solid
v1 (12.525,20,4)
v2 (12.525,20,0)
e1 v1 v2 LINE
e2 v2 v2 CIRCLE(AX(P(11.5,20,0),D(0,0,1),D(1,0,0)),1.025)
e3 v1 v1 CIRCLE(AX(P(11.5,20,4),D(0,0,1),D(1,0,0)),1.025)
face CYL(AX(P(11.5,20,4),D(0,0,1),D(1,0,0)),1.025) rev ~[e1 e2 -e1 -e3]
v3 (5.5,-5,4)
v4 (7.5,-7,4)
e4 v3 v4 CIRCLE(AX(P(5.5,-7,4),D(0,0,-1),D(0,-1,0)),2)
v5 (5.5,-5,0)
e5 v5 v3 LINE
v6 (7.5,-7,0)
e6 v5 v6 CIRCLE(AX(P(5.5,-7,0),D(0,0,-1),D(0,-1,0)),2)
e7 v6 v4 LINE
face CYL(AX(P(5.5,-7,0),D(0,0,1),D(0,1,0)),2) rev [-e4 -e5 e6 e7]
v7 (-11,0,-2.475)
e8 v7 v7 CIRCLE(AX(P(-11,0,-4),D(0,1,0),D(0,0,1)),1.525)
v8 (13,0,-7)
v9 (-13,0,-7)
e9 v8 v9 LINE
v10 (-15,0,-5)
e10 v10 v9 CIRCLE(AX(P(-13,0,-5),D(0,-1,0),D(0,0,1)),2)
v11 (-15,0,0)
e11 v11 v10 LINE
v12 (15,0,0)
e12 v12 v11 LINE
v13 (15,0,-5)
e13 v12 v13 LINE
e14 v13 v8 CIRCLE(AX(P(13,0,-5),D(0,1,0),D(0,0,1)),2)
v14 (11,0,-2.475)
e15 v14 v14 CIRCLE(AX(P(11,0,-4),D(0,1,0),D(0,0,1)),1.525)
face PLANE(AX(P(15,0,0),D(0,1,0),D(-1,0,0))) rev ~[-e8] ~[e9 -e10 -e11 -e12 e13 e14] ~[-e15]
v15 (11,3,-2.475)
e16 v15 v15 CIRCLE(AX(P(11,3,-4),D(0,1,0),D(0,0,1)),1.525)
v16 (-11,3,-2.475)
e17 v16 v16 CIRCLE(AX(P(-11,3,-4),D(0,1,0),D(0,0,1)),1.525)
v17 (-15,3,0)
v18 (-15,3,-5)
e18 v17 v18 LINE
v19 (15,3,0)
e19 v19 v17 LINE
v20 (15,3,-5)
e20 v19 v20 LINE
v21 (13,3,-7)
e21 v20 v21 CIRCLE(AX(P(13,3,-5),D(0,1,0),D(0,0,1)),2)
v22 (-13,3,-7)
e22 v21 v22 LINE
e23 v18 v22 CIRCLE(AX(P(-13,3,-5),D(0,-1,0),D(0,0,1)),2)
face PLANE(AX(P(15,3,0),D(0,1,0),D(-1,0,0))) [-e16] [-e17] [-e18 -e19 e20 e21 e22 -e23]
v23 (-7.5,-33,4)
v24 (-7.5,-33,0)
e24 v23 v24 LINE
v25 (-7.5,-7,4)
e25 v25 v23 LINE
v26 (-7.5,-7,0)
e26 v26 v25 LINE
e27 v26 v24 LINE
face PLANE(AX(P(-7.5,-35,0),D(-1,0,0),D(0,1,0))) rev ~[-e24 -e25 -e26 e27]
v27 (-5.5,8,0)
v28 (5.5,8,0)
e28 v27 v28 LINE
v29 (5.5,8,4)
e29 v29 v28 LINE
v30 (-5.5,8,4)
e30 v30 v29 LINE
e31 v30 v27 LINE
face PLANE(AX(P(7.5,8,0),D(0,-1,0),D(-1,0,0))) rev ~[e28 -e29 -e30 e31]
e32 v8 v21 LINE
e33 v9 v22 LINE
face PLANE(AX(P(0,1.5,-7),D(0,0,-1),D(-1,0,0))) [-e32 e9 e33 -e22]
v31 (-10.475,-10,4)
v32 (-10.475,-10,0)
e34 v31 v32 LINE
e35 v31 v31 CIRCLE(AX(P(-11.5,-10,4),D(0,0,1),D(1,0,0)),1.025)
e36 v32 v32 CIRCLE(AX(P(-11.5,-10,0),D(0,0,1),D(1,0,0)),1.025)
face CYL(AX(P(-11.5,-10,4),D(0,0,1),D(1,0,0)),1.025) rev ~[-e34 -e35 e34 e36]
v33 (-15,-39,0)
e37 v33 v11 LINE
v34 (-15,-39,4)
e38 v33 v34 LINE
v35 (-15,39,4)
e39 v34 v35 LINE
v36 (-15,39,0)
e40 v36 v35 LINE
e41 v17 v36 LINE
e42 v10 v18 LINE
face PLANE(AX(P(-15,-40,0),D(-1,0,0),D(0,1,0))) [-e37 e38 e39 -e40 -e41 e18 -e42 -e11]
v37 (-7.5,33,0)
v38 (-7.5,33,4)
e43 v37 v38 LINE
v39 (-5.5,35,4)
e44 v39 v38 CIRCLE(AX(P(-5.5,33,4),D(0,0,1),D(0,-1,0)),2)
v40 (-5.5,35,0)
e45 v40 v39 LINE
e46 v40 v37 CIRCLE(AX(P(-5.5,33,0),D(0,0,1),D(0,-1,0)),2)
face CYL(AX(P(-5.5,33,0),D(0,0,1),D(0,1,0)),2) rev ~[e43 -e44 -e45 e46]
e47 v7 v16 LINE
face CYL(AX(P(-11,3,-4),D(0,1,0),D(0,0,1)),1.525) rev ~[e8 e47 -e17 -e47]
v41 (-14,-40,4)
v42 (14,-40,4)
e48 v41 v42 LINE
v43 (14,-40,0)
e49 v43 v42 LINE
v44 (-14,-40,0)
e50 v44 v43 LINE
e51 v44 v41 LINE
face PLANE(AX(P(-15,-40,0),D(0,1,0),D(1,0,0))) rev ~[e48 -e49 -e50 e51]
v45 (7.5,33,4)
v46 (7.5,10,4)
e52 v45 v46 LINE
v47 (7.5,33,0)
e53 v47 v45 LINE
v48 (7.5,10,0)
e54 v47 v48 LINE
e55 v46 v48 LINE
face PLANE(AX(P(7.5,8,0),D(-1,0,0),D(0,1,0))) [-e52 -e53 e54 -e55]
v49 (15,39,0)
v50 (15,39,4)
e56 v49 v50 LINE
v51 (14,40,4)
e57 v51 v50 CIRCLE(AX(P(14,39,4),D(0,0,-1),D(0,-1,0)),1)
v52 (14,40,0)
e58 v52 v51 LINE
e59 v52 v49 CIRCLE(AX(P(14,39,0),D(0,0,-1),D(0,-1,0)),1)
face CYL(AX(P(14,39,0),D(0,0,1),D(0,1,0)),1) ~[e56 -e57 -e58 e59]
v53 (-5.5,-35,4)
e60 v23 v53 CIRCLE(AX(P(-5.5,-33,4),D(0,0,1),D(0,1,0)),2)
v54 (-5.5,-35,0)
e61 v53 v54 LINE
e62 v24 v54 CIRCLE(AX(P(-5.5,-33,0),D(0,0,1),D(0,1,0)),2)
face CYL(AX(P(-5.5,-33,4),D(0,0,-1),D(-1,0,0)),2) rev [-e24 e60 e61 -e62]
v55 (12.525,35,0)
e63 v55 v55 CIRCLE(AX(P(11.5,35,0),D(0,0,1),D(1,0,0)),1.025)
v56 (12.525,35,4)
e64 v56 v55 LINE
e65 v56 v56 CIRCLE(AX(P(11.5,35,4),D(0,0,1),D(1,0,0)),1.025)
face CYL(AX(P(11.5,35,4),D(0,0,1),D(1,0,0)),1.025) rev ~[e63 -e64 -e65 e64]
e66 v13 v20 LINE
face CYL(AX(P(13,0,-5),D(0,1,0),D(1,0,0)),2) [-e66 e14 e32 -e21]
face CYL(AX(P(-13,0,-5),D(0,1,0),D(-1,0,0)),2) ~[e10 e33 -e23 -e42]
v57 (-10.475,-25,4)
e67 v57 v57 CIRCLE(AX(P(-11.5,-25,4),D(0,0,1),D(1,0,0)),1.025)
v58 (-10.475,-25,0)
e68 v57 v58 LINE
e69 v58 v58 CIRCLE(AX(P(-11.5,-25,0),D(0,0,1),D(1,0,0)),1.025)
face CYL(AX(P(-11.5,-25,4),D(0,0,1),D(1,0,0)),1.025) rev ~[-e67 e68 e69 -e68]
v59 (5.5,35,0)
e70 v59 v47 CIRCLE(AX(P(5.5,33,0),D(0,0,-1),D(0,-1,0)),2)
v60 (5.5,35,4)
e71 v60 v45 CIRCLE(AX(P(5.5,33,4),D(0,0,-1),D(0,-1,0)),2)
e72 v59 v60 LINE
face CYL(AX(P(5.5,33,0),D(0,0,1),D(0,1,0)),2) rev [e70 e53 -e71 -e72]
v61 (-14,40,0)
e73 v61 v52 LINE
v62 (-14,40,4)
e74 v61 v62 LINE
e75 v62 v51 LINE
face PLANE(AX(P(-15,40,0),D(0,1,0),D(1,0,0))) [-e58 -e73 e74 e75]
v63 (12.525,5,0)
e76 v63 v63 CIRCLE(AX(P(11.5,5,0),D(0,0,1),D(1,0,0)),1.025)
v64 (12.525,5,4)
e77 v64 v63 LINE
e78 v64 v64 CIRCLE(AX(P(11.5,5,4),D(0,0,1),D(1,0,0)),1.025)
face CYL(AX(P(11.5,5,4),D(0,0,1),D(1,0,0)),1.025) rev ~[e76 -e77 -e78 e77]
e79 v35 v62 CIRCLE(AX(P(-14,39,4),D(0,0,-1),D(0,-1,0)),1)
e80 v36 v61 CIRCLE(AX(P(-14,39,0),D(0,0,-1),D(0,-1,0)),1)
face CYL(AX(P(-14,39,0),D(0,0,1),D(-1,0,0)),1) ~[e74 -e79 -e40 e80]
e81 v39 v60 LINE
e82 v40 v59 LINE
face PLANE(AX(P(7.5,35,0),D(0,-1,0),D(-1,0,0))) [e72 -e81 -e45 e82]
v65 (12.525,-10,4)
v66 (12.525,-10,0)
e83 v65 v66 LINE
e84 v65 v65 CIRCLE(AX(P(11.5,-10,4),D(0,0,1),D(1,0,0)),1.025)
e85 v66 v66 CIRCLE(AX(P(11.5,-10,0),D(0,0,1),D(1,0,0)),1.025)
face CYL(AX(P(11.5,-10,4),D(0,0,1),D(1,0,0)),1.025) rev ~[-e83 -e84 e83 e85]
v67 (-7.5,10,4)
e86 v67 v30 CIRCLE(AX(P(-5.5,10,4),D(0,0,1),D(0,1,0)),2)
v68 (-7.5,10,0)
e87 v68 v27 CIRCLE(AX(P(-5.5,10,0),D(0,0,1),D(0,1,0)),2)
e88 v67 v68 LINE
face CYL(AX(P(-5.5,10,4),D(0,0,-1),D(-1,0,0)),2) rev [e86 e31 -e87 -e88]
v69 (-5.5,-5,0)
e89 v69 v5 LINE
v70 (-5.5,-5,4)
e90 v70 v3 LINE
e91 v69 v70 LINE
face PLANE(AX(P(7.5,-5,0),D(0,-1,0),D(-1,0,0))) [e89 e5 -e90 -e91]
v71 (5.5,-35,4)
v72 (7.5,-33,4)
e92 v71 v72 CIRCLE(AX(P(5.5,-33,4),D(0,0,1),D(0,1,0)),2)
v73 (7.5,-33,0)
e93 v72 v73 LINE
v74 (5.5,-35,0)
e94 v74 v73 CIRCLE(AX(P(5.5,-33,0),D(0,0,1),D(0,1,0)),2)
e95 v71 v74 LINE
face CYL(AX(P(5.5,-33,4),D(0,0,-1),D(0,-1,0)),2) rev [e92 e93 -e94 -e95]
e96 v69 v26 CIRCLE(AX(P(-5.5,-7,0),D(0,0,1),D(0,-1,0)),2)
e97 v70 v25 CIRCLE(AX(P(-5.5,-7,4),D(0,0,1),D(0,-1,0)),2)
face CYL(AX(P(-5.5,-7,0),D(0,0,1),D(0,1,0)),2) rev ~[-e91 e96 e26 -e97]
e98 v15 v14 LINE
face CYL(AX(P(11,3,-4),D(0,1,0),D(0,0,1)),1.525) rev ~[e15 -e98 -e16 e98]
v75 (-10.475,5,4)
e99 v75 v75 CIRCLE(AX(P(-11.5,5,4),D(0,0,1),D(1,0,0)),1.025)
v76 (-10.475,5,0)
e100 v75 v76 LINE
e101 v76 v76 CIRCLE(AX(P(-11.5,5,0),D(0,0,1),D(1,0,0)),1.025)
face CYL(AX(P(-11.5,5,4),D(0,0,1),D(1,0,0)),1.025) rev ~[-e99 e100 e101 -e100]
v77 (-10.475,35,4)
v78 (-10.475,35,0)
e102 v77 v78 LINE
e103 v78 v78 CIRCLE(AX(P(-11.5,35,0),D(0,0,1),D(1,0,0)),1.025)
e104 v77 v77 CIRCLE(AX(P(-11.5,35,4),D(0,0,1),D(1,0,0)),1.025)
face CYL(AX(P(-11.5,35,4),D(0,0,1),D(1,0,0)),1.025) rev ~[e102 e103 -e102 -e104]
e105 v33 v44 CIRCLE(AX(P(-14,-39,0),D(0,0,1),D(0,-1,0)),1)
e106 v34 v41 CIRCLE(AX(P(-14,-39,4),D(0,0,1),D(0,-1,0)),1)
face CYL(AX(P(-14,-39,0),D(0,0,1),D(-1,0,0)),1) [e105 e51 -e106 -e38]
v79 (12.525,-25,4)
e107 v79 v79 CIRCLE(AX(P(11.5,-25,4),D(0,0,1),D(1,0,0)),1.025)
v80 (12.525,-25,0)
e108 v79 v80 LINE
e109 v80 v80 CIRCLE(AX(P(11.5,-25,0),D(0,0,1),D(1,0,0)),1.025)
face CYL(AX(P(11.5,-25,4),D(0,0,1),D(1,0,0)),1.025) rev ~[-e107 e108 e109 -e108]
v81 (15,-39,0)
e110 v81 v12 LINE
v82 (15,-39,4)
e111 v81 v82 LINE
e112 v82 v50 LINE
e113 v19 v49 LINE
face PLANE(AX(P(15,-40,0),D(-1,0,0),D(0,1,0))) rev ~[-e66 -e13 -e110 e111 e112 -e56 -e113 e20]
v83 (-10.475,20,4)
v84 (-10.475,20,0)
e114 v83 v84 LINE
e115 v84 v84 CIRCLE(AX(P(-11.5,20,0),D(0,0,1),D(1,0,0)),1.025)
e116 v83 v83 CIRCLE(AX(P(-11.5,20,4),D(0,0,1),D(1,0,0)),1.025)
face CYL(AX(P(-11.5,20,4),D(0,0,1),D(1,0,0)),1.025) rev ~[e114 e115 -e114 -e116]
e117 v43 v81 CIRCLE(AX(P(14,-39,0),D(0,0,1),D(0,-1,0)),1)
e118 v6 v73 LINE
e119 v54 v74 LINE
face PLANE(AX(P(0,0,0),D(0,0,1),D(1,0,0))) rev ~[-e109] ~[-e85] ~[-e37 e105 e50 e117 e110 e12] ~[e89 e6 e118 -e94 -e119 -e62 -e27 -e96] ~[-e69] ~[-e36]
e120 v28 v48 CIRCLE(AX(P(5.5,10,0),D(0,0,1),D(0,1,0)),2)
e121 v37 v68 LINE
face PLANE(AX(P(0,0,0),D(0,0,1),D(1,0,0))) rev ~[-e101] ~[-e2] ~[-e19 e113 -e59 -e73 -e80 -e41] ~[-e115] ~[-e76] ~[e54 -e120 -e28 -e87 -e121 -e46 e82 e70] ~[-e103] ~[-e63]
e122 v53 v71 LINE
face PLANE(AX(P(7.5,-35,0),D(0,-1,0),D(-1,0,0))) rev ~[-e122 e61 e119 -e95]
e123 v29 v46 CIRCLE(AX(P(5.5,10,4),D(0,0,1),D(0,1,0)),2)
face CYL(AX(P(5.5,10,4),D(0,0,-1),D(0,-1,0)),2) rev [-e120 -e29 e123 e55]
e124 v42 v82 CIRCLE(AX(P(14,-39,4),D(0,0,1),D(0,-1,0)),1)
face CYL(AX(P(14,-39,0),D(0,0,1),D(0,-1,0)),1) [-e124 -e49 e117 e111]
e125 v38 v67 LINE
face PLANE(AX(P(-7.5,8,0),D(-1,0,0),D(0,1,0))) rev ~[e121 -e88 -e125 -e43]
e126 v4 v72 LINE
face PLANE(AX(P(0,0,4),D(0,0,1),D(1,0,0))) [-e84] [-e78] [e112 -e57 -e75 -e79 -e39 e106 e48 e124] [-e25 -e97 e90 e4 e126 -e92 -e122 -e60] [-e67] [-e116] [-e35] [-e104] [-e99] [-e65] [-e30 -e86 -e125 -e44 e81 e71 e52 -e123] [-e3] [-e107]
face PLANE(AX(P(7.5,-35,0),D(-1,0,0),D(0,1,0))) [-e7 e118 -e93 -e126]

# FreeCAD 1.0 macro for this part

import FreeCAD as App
import Part
import Sketcher

V = App.Vector
Q = App.Units.Quantity


def edges_at(feature, points):
    """Names of the edges that pass closest to the given points."""
    edges = feature.Shape.Edges
    near = lambda p: min(range(len(edges)), key=lambda i: edges[i].distToShape(Part.Vertex(*p))[0])
    return sorted({f"Edge{near(p) + 1}" for p in points})

doc = App.newDocument("Part")
body = doc.addObject("PartDesign::Body", "Body")

# Sketch on XY plane
sketch1 = doc.addObject("Sketcher::SketchObject", "Sketch")
body.addObject(sketch1)
sketch1.AttachmentSupport = (doc.XY_Plane, [""])
sketch1.MapMode = "FlatFace"
sketch1.addGeometry([
    Part.LineSegment(V(-15, 40, 0), V(-15, -40, 0)),
    Part.LineSegment(V(-15, -40, 0), V(15, -40, 0)),
    Part.LineSegment(V(15, -40, 0), V(15, 40, 0)),
    Part.LineSegment(V(15, 40, 0), V(-15, 40, 0)),
], False)
sketch1.addConstraint([
    Sketcher.Constraint("Coincident", 0, 2, 1, 1),
    Sketcher.Constraint("Coincident", 1, 2, 2, 1),
    Sketcher.Constraint("Coincident", 2, 2, 3, 1),
    Sketcher.Constraint("Coincident", 3, 2, 0, 1),
    Sketcher.Constraint("Vertical", 0),
    Sketcher.Constraint("Horizontal", 1),
    Sketcher.Constraint("Vertical", 2),
    Sketcher.Constraint("Horizontal", 3),
    Sketcher.Constraint("Symmetric", 0, 2, 2, 2, -1, 1),
    Sketcher.Constraint("DistanceX", 1, 1, 1, 2, Q("30 mm")),
    Sketcher.Constraint("DistanceY", 0, 2, 0, 1, Q("80 mm")),
])
pad1 = doc.addObject("PartDesign::Pad", "Pad")
body.addObject(pad1)
pad1.Profile = sketch1
pad1.Length = 4

# Sketch on XY plane
sketch2 = doc.addObject("Sketcher::SketchObject", "Sketch001")
body.addObject(sketch2)
sketch2.AttachmentSupport = (doc.XY_Plane, [""])
sketch2.MapMode = "FlatFace"
sketch2.AttachmentOffset = App.Placement(V(0, 0, 4), App.Rotation())
sketch2.addGeometry([
    Part.Circle(V(11.5, 35, 0), V(0, 0, 1), 1),
    Part.Circle(V(-11.5, 35, 0), V(0, 0, 1), 1),
], False)
sketch2.addConstraint([
    Sketcher.Constraint("Equal", 0, 1),
    Sketcher.Constraint("Symmetric", 0, 3, 1, 3, -2),
    Sketcher.Constraint("Diameter", 0, Q("2.05 mm")),
    Sketcher.Constraint("DistanceY", -1, 1, 0, 3, Q("35 mm")),
    Sketcher.Constraint("DistanceX", 1, 3, 0, 3, Q("23 mm")),
])
pocket1 = doc.addObject("PartDesign::Pocket", "Pocket")
body.addObject(pocket1)
pocket1.Profile = sketch2
pocket1.Length = 10
doc.recompute()

linearpattern = doc.addObject("PartDesign::LinearPattern", "LinearPattern")
body.addObject(linearpattern)
linearpattern.Originals = [pocket1]
linearpattern.Direction = (doc.Y_Axis, [""])
linearpattern.Mode = "offset"
linearpattern.Offset = 15
linearpattern.Occurrences = 5
linearpattern.Reversed = True
body.Tip = linearpattern

# Sketch on XY plane
sketch3 = doc.addObject("Sketcher::SketchObject", "Sketch002")
body.addObject(sketch3)
sketch3.AttachmentSupport = (doc.XY_Plane, [""])
sketch3.MapMode = "FlatFace"
sketch3.addGeometry([
    Part.LineSegment(V(15, 3, 0), V(15, 0, 0)),
    Part.LineSegment(V(15, 0, 0), V(-15, 0, 0)),
    Part.LineSegment(V(-15, 0, 0), V(-15, 3, 0)),
    Part.LineSegment(V(-15, 3, 0), V(15, 3, 0)),
], False)
sketch3.addConstraint([
    Sketcher.Constraint("Coincident", 0, 2, 1, 1),
    Sketcher.Constraint("Coincident", 1, 2, 2, 1),
    Sketcher.Constraint("Coincident", 2, 2, 3, 1),
    Sketcher.Constraint("Coincident", 3, 2, 0, 1),
    Sketcher.Constraint("Vertical", 0),
    Sketcher.Constraint("Horizontal", 1),
    Sketcher.Constraint("Vertical", 2),
    Sketcher.Constraint("Horizontal", 3),
    Sketcher.Constraint("Symmetric", 0, 2, 1, 2, -1, 1),
    Sketcher.Constraint("DistanceX", 1, 2, 1, 1, Q("30 mm")),
    Sketcher.Constraint("DistanceY", 0, 2, 0, 1, Q("3 mm")),
])
pad2 = doc.addObject("PartDesign::Pad", "Pad001")
body.addObject(pad2)
pad2.Profile = sketch3
pad2.Length = 7
pad2.Reversed = True
doc.recompute()

fillet = doc.addObject("PartDesign::Fillet", "Fillet")
body.addObject(fillet)
fillet.Base = (pad2, edges_at(pad2, [
    (15, -40, 2),
    (-15, -40, 2),
    (-15, 40, 2),
    (15, 40, 2),
]))
fillet.Radius = 1

# Sketch on XY plane
sketch4 = doc.addObject("Sketcher::SketchObject", "Sketch003")
body.addObject(sketch4)
sketch4.AttachmentSupport = (doc.XY_Plane, [""])
sketch4.MapMode = "FlatFace"
sketch4.addGeometry([
    Part.LineSegment(V(8, 35, 0), V(8, 8, 0)),
    Part.LineSegment(V(8, 8, 0), V(-8, 8, 0)),
    Part.LineSegment(V(-8, 8, 0), V(-8, 35, 0)),
    Part.LineSegment(V(-8, 35, 0), V(8, 35, 0)),
], False)
sketch4.addConstraint([
    Sketcher.Constraint("Coincident", 0, 2, 1, 1),
    Sketcher.Constraint("Coincident", 1, 2, 2, 1),
    Sketcher.Constraint("Coincident", 2, 2, 3, 1),
    Sketcher.Constraint("Coincident", 3, 2, 0, 1),
    Sketcher.Constraint("Vertical", 0),
    Sketcher.Constraint("Horizontal", 1),
    Sketcher.Constraint("Vertical", 2),
    Sketcher.Constraint("Horizontal", 3),
    Sketcher.Constraint("DistanceX", 1, 2, 1, 1, Q("15 mm")),
    Sketcher.Constraint("DistanceY", 0, 2, 0, 1, Q("27 mm")),
    Sketcher.Constraint("DistanceY", -1, 1, 0, 2, Q("8 mm")),
    Sketcher.Constraint("DistanceX", -1, 1, 0, 2, Q("7.5 mm")),
])
pocket2 = doc.addObject("PartDesign::Pocket", "Pocket001")
body.addObject(pocket2)
pocket2.Profile = sketch4
pocket2.Length = 66
pocket2.Midplane = True
doc.recompute()

fillet2 = doc.addObject("PartDesign::Fillet", "Fillet001")
body.addObject(fillet2)
fillet2.Base = (pocket2, edges_at(pocket2, [
    (-7.5, 35, 2),
    (-7.5, 8, 2),
    (7.5, 8, 2),
    (7.5, 35, 2),
]))
fillet2.Radius = 2

# Sketch on XY plane
sketch5 = doc.addObject("Sketcher::SketchObject", "Sketch004")
body.addObject(sketch5)
sketch5.AttachmentSupport = (doc.XY_Plane, [""])
sketch5.MapMode = "FlatFace"
sketch5.addGeometry([
    Part.LineSegment(V(8, -5, 0), V(8, -35, 0)),
    Part.LineSegment(V(8, -35, 0), V(-8, -35, 0)),
    Part.LineSegment(V(-8, -35, 0), V(-8, -5, 0)),
    Part.LineSegment(V(-8, -5, 0), V(8, -5, 0)),
], False)
sketch5.addConstraint([
    Sketcher.Constraint("Coincident", 0, 2, 1, 1),
    Sketcher.Constraint("Coincident", 1, 2, 2, 1),
    Sketcher.Constraint("Coincident", 2, 2, 3, 1),
    Sketcher.Constraint("Coincident", 3, 2, 0, 1),
    Sketcher.Constraint("Vertical", 0),
    Sketcher.Constraint("Horizontal", 1),
    Sketcher.Constraint("Vertical", 2),
    Sketcher.Constraint("Horizontal", 3),
    Sketcher.Constraint("DistanceX", 1, 2, 1, 1, Q("15 mm")),
    Sketcher.Constraint("DistanceY", 0, 2, 0, 1, Q("30 mm")),
    Sketcher.Constraint("DistanceY", 0, 2, -1, 1, Q("35 mm")),
    Sketcher.Constraint("DistanceX", -1, 1, 0, 2, Q("7.5 mm")),
])
pocket3 = doc.addObject("PartDesign::Pocket", "Pocket002")
body.addObject(pocket3)
pocket3.Profile = sketch5
pocket3.Length = 66
pocket3.Midplane = True
doc.recompute()

fillet3 = doc.addObject("PartDesign::Fillet", "Fillet002")
body.addObject(fillet3)
fillet3.Base = (pocket3, edges_at(pocket3, [
    (-7.5, -5, 2),
    (-7.5, -35, 2),
    (7.5, -35, 2),
    (7.5, -5, 2),
]))
fillet3.Radius = 2

# Sketch on XZ plane
sketch6 = doc.addObject("Sketcher::SketchObject", "Sketch005")
body.addObject(sketch6)
sketch6.AttachmentSupport = (doc.XZ_Plane, [""])
sketch6.MapMode = "FlatFace"
sketch6.AttachmentOffset = App.Placement(V(0, 0, -3), App.Rotation())
sketch6.addGeometry([
    Part.Circle(V(11, -4, 0), V(0, 0, 1), 1.5),
    Part.Circle(V(-11, -4, 0), V(0, 0, 1), 1.5),
], False)
sketch6.addConstraint([
    Sketcher.Constraint("Equal", 0, 1),
    Sketcher.Constraint("Symmetric", 0, 3, 1, 3, -2),
    Sketcher.Constraint("Diameter", 0, Q("3.05 mm")),
    Sketcher.Constraint("DistanceX", -1, 1, 0, 3, Q("11 mm")),
    Sketcher.Constraint("DistanceY", 0, 3, -1, 1, Q("4 mm")),
])
pocket4 = doc.addObject("PartDesign::Pocket", "Pocket003")
body.addObject(pocket4)
pocket4.Profile = sketch6
pocket4.Length = 66
pocket4.Midplane = True
doc.recompute()

fillet4 = doc.addObject("PartDesign::Fillet", "Fillet003")
body.addObject(fillet4)
fillet4.Base = (pocket4, edges_at(pocket4, [(15, 1.5, -7), (-15, 1.5, -7)]))
fillet4.Radius = 2

doc.recompute()
